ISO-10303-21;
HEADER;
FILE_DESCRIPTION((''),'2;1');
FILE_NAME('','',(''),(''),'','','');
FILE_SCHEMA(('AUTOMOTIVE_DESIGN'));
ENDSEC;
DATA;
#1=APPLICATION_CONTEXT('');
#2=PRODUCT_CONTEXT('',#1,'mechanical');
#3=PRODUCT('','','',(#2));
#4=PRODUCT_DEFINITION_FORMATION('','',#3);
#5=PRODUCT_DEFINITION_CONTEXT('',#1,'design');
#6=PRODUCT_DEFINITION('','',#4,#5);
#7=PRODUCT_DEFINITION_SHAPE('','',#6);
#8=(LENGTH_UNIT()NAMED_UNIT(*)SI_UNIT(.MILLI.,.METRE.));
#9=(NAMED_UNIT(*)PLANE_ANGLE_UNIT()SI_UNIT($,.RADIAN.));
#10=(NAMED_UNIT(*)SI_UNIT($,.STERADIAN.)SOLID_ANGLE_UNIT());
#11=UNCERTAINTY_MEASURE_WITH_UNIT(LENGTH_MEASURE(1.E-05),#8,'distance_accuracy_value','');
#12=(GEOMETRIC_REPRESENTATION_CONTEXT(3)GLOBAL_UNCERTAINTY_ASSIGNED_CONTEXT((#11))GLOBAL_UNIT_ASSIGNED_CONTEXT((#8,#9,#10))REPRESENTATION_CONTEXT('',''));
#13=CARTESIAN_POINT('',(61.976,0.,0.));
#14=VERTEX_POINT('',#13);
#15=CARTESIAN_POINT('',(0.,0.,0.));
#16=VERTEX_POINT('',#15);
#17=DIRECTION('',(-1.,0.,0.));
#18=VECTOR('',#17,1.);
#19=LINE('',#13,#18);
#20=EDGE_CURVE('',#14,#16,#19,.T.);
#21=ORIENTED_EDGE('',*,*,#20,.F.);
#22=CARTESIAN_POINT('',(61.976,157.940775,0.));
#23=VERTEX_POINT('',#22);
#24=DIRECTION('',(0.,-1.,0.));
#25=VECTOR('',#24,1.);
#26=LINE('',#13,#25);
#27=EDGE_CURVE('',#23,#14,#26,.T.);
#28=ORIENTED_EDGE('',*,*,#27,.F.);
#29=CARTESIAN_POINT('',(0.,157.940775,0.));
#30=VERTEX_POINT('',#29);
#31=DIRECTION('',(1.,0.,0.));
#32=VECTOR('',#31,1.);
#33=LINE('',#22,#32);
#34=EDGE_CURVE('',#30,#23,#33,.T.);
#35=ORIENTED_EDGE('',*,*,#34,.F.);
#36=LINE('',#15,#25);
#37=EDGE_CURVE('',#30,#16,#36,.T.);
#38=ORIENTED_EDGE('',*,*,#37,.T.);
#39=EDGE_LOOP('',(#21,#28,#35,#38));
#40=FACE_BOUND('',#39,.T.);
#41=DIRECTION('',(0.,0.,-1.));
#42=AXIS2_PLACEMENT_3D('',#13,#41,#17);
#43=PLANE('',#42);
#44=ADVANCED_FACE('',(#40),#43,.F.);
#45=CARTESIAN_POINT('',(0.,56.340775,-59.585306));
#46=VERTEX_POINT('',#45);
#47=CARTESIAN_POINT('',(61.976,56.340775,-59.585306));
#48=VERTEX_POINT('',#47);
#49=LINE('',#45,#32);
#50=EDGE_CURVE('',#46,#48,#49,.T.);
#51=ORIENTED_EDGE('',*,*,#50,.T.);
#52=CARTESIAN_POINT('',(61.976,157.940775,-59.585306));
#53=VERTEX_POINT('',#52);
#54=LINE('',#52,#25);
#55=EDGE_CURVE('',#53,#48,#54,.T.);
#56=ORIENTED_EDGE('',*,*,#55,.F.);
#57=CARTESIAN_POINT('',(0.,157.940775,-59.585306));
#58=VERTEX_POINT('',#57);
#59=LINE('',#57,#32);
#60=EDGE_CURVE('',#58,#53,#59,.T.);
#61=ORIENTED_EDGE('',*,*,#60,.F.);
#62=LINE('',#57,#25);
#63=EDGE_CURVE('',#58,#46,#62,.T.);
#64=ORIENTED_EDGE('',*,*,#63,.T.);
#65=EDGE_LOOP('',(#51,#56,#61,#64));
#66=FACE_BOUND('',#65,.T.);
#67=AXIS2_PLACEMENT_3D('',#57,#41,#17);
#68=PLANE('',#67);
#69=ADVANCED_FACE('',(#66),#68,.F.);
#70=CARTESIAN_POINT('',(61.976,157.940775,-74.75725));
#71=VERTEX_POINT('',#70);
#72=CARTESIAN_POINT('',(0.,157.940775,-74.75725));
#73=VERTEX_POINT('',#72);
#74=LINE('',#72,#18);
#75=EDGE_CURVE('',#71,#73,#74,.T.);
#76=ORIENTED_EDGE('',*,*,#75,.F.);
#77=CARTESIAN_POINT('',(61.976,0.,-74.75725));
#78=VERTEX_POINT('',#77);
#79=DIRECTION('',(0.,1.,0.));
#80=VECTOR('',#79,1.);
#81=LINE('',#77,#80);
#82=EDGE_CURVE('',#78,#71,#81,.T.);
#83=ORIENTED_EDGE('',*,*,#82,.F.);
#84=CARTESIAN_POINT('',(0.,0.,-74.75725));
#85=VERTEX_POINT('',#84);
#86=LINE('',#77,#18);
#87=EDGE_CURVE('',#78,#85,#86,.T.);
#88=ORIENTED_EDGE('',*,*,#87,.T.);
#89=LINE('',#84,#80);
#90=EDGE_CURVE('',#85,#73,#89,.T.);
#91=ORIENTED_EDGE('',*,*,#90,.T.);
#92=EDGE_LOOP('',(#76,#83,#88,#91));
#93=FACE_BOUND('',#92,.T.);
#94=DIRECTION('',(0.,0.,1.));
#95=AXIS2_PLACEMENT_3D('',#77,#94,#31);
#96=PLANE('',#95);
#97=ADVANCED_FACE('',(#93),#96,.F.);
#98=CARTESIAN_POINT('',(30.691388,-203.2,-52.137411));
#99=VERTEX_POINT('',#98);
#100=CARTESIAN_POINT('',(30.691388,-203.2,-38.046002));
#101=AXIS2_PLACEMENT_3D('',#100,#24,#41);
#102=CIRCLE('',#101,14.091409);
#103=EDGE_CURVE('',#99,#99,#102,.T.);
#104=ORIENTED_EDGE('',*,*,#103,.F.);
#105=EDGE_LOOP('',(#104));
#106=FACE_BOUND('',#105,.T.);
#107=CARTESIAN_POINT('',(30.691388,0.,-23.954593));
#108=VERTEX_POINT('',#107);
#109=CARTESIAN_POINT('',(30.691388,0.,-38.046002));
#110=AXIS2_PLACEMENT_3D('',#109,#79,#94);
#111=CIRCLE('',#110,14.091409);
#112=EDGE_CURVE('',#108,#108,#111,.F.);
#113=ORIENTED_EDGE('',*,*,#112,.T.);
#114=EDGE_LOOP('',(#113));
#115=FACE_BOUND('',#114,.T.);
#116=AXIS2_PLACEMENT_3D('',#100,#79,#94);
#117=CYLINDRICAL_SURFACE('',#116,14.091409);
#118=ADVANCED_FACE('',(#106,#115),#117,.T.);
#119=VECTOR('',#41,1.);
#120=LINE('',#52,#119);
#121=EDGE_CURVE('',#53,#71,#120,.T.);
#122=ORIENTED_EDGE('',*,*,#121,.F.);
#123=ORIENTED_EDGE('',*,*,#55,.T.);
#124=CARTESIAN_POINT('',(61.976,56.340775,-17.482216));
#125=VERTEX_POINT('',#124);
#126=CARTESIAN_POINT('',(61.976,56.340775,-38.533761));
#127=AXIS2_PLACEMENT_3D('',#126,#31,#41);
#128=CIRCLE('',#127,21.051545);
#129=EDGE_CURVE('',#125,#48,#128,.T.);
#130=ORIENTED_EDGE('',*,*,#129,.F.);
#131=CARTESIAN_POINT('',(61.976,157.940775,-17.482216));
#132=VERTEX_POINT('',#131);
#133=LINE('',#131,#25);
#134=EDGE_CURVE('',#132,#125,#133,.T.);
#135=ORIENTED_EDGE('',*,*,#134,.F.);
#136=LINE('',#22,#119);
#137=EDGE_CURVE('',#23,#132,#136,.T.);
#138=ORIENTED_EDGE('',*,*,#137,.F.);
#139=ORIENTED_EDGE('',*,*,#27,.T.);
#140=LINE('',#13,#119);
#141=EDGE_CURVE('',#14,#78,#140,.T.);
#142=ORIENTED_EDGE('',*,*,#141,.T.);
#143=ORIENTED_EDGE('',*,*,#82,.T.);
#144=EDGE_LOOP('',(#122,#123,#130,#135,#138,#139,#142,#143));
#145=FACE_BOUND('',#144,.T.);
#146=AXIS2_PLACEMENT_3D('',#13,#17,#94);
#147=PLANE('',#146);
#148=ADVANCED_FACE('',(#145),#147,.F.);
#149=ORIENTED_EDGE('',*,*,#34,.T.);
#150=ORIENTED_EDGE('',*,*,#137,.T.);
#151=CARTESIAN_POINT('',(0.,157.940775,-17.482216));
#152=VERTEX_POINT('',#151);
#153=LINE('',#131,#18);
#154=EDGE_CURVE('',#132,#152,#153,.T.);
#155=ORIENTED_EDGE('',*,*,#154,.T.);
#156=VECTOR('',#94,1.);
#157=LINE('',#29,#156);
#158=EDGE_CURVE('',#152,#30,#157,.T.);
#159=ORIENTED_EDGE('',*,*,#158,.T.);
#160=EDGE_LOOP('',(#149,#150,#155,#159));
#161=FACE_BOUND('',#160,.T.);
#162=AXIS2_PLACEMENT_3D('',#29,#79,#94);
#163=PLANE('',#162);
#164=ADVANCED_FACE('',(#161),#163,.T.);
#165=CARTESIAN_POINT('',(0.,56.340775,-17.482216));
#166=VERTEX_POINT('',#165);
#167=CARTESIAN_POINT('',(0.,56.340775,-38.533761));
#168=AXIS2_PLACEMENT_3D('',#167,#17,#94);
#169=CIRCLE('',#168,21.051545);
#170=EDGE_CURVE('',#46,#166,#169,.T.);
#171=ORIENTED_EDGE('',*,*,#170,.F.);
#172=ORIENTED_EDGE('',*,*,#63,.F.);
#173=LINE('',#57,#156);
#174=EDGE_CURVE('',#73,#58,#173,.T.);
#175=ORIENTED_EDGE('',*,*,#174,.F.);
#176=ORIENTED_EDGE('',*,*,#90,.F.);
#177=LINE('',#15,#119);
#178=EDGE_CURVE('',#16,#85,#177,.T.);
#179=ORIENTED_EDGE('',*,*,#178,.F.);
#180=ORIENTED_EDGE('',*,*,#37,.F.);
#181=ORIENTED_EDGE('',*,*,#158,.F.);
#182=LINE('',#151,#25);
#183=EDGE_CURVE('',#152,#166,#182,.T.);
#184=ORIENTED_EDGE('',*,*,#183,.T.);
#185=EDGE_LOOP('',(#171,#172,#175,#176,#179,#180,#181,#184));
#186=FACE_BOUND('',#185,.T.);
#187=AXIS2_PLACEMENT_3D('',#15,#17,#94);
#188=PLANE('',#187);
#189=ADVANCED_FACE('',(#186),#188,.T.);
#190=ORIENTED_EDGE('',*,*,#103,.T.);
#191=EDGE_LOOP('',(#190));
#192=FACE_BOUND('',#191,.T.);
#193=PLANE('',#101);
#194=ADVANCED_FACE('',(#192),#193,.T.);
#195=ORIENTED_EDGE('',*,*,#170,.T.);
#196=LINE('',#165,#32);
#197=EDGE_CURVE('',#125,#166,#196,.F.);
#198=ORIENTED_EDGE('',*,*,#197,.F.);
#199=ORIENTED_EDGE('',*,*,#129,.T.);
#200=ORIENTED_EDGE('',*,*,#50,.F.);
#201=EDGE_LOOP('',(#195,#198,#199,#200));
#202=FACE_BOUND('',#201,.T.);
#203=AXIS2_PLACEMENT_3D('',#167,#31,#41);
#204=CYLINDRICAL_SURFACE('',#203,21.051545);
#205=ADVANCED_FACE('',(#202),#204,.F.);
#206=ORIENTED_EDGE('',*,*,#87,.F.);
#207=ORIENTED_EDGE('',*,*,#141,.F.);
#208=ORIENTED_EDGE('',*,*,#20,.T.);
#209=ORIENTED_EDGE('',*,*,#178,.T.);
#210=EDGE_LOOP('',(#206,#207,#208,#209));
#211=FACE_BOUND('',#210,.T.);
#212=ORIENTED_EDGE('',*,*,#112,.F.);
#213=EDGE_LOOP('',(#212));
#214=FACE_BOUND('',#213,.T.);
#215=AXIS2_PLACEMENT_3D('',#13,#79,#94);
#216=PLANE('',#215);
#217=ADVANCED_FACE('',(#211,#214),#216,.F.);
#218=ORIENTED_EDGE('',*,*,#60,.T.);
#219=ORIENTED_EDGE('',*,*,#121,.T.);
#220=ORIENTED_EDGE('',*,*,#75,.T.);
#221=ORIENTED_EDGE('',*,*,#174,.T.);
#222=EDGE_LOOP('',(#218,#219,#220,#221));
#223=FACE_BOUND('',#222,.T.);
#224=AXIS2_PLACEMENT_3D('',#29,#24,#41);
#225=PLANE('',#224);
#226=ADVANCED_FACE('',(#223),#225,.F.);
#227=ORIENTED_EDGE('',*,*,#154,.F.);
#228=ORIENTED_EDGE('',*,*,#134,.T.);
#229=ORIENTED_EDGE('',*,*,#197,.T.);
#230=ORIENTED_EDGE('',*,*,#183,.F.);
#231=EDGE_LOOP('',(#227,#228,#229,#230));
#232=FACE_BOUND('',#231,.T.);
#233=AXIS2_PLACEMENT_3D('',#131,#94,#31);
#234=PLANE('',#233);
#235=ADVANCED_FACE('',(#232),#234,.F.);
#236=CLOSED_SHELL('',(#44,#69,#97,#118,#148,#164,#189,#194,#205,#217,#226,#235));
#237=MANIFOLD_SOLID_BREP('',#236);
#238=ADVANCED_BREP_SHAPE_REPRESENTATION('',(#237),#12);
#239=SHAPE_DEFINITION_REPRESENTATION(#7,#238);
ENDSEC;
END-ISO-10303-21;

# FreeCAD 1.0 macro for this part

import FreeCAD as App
import Part
import Sketcher
from FreeCAD import Vector
Q = App.Units.Quantity

doc = App.newDocument("Part")
body = doc.addObject("PartDesign::Body", "Body")

sketch1 = doc.addObject("Sketcher::SketchObject", "Sketch")
body.addObject(sketch1)
sketch1.AttachmentSupport = (doc.YZ_Plane, [""])
sketch1.MapMode = "FlatFace"
sketch1.addGeometry([
    Part.LineSegment(Vector(56.340775, 0, 0), Vector(0, 0, 0)),
    Part.LineSegment(Vector(0, 0, 0), Vector(0, -74.75725, 0)),
    Part.LineSegment(Vector(0, -74.75725, 0), Vector(56.340775, -74.75725, 0)),
    Part.LineSegment(Vector(56.340775, -74.75725, 0), Vector(56.340775, 0, 0)),
], False)
sketch1.addConstraint([
    Sketcher.Constraint("Coincident", 0, 2, 1, 1),
    Sketcher.Constraint("Coincident", 1, 2, 2, 1),
    Sketcher.Constraint("Coincident", 2, 2, 3, 1),
    Sketcher.Constraint("Coincident", 3, 2, 0, 1),
    Sketcher.Constraint("Horizontal", 0),
    Sketcher.Constraint("Vertical", 1),
    Sketcher.Constraint("Horizontal", 2),
    Sketcher.Constraint("Vertical", 3),
    Sketcher.Constraint("Coincident", 0, 2, -1, 1),
    Sketcher.Constraint("DistanceY", 1, 2, 1, 1, Q("74.75725 mm")),
    Sketcher.Constraint("DistanceX", 0, 2, 0, 1, Q("56.340775 mm")),
])
pad1 = doc.addObject("PartDesign::Pad", "Pad")
body.addObject(pad1)
pad1.Profile = sketch1
pad1.Length = Q("2.44 in")

sketch2 = doc.addObject("Sketcher::SketchObject", "Sketch001")
body.addObject(sketch2)
sketch2.AttachmentSupport = (doc.YZ_Plane, [""])
sketch2.MapMode = "FlatFace"
sketch2.AttachmentOffset = App.Placement(Vector(0, 0, 2.44 * 25.4), App.Rotation())
sketch2.addGeometry(Part.Circle(Vector(56.340775, -38.533761, 0), Vector(0, 0, 1), 21.051545), False)
sketch2.addConstraint([
    Sketcher.Constraint("Diameter", 0, Q("42.10309 mm")),
    Sketcher.Constraint("DistanceY", 0, 3, -1, 1, Q("38.533761 mm")),
    Sketcher.Constraint("DistanceX", -1, 1, 0, 3, Q("56.340775 mm")),
])
pocket1 = doc.addObject("PartDesign::Pocket", "Pocket")
body.addObject(pocket1)
pocket1.Profile = sketch2
pocket1.Length = Q("2.44 in")

sketch3 = doc.addObject("Sketcher::SketchObject", "Sketch002")
body.addObject(sketch3)
sketch3.AttachmentSupport = (doc.XZ_Plane, [""])
sketch3.MapMode = "FlatFace"
sketch3.AttachmentOffset = App.Placement(Vector(0, 0, -56.340775), App.Rotation())
sketch3.addGeometry([
    Part.LineSegment(Vector(0, -17.482216, 0), Vector(0, 0, 0)),
    Part.LineSegment(Vector(0, 0, 0), Vector(61.976, 0, 0)),
    Part.LineSegment(Vector(61.976, 0, 0), Vector(61.976, -17.482216, 0)),
    Part.LineSegment(Vector(61.976, -17.482216, 0), Vector(0, -17.482216, 0)),
], False)
sketch3.addConstraint([
    Sketcher.Constraint("Coincident", 0, 2, 1, 1),
    Sketcher.Constraint("Coincident", 1, 2, 2, 1),
    Sketcher.Constraint("Coincident", 2, 2, 3, 1),
    Sketcher.Constraint("Coincident", 3, 2, 0, 1),
    Sketcher.Constraint("Vertical", 0),
    Sketcher.Constraint("Horizontal", 1),
    Sketcher.Constraint("Vertical", 2),
    Sketcher.Constraint("Horizontal", 3),
    Sketcher.Constraint("Coincident", 0, 2, -1, 1),
    Sketcher.Constraint("DistanceX", 1, 1, 1, 2, Q("2.44 in")),
    Sketcher.Constraint("DistanceY", 0, 1, 0, 2, Q("17.482216 mm")),
])
pad2 = doc.addObject("PartDesign::Pad", "Pad001")
body.addObject(pad2)
pad2.Profile = sketch3
pad2.Length = Q("4 in")
pad2.Reversed = True

sketch4 = doc.addObject("Sketcher::SketchObject", "Sketch003")
body.addObject(sketch4)
sketch4.AttachmentSupport = (doc.XZ_Plane, [""])
sketch4.MapMode = "FlatFace"
sketch4.addGeometry(Part.Circle(Vector(30.691388, -38.046002, 0), Vector(0, 0, 1), 14.091409), False)
sketch4.addConstraint([
    Sketcher.Constraint("Diameter", 0, Q("28.182817 mm")),
    Sketcher.Constraint("DistanceX", -1, 1, 0, 3, Q("30.691388 mm")),
    Sketcher.Constraint("DistanceY", 0, 3, -1, 1, Q("38.046002 mm")),
])
pad3 = doc.addObject("PartDesign::Pad", "Pad002")
body.addObject(pad3)
pad3.Profile = sketch4
pad3.Length = Q("8 in")

sketch5 = doc.addObject("Sketcher::SketchObject", "Sketch004")
body.addObject(sketch5)
sketch5.AttachmentSupport = (doc.XZ_Plane, [""])
sketch5.MapMode = "FlatFace"
sketch5.AttachmentOffset = App.Placement(Vector(0, 0, -56.340775), App.Rotation())
sketch5.addGeometry([
    Part.LineSegment(Vector(0, -74.75725, 0), Vector(0, -59.585306, 0)),
    Part.LineSegment(Vector(0, -59.585306, 0), Vector(61.976, -59.585306, 0)),
    Part.LineSegment(Vector(61.976, -59.585306, 0), Vector(61.976, -74.75725, 0)),
    Part.LineSegment(Vector(61.976, -74.75725, 0), Vector(0, -74.75725, 0)),
], False)
sketch5.addConstraint([
    Sketcher.Constraint("Coincident", 0, 2, 1, 1),
    Sketcher.Constraint("Coincident", 1, 2, 2, 1),
    Sketcher.Constraint("Coincident", 2, 2, 3, 1),
    Sketcher.Constraint("Coincident", 3, 2, 0, 1),
    Sketcher.Constraint("Vertical", 0),
    Sketcher.Constraint("Horizontal", 1),
    Sketcher.Constraint("Vertical", 2),
    Sketcher.Constraint("Horizontal", 3),
    Sketcher.Constraint("PointOnObject", 0, 2, -2),
    Sketcher.Constraint("DistanceX", 1, 1, 1, 2, Q("2.44 in")),
    Sketcher.Constraint("DistanceY", 0, 1, 0, 2, Q("15.171944 mm")),
    Sketcher.Constraint("DistanceY", 2, 2, -1, 1, Q("74.75725 mm")),
])
pad4 = doc.addObject("PartDesign::Pad", "Pad003")
body.addObject(pad4)
pad4.Profile = sketch5
pad4.Length = Q("4 in")
pad4.Reversed = True

doc.recompute()
